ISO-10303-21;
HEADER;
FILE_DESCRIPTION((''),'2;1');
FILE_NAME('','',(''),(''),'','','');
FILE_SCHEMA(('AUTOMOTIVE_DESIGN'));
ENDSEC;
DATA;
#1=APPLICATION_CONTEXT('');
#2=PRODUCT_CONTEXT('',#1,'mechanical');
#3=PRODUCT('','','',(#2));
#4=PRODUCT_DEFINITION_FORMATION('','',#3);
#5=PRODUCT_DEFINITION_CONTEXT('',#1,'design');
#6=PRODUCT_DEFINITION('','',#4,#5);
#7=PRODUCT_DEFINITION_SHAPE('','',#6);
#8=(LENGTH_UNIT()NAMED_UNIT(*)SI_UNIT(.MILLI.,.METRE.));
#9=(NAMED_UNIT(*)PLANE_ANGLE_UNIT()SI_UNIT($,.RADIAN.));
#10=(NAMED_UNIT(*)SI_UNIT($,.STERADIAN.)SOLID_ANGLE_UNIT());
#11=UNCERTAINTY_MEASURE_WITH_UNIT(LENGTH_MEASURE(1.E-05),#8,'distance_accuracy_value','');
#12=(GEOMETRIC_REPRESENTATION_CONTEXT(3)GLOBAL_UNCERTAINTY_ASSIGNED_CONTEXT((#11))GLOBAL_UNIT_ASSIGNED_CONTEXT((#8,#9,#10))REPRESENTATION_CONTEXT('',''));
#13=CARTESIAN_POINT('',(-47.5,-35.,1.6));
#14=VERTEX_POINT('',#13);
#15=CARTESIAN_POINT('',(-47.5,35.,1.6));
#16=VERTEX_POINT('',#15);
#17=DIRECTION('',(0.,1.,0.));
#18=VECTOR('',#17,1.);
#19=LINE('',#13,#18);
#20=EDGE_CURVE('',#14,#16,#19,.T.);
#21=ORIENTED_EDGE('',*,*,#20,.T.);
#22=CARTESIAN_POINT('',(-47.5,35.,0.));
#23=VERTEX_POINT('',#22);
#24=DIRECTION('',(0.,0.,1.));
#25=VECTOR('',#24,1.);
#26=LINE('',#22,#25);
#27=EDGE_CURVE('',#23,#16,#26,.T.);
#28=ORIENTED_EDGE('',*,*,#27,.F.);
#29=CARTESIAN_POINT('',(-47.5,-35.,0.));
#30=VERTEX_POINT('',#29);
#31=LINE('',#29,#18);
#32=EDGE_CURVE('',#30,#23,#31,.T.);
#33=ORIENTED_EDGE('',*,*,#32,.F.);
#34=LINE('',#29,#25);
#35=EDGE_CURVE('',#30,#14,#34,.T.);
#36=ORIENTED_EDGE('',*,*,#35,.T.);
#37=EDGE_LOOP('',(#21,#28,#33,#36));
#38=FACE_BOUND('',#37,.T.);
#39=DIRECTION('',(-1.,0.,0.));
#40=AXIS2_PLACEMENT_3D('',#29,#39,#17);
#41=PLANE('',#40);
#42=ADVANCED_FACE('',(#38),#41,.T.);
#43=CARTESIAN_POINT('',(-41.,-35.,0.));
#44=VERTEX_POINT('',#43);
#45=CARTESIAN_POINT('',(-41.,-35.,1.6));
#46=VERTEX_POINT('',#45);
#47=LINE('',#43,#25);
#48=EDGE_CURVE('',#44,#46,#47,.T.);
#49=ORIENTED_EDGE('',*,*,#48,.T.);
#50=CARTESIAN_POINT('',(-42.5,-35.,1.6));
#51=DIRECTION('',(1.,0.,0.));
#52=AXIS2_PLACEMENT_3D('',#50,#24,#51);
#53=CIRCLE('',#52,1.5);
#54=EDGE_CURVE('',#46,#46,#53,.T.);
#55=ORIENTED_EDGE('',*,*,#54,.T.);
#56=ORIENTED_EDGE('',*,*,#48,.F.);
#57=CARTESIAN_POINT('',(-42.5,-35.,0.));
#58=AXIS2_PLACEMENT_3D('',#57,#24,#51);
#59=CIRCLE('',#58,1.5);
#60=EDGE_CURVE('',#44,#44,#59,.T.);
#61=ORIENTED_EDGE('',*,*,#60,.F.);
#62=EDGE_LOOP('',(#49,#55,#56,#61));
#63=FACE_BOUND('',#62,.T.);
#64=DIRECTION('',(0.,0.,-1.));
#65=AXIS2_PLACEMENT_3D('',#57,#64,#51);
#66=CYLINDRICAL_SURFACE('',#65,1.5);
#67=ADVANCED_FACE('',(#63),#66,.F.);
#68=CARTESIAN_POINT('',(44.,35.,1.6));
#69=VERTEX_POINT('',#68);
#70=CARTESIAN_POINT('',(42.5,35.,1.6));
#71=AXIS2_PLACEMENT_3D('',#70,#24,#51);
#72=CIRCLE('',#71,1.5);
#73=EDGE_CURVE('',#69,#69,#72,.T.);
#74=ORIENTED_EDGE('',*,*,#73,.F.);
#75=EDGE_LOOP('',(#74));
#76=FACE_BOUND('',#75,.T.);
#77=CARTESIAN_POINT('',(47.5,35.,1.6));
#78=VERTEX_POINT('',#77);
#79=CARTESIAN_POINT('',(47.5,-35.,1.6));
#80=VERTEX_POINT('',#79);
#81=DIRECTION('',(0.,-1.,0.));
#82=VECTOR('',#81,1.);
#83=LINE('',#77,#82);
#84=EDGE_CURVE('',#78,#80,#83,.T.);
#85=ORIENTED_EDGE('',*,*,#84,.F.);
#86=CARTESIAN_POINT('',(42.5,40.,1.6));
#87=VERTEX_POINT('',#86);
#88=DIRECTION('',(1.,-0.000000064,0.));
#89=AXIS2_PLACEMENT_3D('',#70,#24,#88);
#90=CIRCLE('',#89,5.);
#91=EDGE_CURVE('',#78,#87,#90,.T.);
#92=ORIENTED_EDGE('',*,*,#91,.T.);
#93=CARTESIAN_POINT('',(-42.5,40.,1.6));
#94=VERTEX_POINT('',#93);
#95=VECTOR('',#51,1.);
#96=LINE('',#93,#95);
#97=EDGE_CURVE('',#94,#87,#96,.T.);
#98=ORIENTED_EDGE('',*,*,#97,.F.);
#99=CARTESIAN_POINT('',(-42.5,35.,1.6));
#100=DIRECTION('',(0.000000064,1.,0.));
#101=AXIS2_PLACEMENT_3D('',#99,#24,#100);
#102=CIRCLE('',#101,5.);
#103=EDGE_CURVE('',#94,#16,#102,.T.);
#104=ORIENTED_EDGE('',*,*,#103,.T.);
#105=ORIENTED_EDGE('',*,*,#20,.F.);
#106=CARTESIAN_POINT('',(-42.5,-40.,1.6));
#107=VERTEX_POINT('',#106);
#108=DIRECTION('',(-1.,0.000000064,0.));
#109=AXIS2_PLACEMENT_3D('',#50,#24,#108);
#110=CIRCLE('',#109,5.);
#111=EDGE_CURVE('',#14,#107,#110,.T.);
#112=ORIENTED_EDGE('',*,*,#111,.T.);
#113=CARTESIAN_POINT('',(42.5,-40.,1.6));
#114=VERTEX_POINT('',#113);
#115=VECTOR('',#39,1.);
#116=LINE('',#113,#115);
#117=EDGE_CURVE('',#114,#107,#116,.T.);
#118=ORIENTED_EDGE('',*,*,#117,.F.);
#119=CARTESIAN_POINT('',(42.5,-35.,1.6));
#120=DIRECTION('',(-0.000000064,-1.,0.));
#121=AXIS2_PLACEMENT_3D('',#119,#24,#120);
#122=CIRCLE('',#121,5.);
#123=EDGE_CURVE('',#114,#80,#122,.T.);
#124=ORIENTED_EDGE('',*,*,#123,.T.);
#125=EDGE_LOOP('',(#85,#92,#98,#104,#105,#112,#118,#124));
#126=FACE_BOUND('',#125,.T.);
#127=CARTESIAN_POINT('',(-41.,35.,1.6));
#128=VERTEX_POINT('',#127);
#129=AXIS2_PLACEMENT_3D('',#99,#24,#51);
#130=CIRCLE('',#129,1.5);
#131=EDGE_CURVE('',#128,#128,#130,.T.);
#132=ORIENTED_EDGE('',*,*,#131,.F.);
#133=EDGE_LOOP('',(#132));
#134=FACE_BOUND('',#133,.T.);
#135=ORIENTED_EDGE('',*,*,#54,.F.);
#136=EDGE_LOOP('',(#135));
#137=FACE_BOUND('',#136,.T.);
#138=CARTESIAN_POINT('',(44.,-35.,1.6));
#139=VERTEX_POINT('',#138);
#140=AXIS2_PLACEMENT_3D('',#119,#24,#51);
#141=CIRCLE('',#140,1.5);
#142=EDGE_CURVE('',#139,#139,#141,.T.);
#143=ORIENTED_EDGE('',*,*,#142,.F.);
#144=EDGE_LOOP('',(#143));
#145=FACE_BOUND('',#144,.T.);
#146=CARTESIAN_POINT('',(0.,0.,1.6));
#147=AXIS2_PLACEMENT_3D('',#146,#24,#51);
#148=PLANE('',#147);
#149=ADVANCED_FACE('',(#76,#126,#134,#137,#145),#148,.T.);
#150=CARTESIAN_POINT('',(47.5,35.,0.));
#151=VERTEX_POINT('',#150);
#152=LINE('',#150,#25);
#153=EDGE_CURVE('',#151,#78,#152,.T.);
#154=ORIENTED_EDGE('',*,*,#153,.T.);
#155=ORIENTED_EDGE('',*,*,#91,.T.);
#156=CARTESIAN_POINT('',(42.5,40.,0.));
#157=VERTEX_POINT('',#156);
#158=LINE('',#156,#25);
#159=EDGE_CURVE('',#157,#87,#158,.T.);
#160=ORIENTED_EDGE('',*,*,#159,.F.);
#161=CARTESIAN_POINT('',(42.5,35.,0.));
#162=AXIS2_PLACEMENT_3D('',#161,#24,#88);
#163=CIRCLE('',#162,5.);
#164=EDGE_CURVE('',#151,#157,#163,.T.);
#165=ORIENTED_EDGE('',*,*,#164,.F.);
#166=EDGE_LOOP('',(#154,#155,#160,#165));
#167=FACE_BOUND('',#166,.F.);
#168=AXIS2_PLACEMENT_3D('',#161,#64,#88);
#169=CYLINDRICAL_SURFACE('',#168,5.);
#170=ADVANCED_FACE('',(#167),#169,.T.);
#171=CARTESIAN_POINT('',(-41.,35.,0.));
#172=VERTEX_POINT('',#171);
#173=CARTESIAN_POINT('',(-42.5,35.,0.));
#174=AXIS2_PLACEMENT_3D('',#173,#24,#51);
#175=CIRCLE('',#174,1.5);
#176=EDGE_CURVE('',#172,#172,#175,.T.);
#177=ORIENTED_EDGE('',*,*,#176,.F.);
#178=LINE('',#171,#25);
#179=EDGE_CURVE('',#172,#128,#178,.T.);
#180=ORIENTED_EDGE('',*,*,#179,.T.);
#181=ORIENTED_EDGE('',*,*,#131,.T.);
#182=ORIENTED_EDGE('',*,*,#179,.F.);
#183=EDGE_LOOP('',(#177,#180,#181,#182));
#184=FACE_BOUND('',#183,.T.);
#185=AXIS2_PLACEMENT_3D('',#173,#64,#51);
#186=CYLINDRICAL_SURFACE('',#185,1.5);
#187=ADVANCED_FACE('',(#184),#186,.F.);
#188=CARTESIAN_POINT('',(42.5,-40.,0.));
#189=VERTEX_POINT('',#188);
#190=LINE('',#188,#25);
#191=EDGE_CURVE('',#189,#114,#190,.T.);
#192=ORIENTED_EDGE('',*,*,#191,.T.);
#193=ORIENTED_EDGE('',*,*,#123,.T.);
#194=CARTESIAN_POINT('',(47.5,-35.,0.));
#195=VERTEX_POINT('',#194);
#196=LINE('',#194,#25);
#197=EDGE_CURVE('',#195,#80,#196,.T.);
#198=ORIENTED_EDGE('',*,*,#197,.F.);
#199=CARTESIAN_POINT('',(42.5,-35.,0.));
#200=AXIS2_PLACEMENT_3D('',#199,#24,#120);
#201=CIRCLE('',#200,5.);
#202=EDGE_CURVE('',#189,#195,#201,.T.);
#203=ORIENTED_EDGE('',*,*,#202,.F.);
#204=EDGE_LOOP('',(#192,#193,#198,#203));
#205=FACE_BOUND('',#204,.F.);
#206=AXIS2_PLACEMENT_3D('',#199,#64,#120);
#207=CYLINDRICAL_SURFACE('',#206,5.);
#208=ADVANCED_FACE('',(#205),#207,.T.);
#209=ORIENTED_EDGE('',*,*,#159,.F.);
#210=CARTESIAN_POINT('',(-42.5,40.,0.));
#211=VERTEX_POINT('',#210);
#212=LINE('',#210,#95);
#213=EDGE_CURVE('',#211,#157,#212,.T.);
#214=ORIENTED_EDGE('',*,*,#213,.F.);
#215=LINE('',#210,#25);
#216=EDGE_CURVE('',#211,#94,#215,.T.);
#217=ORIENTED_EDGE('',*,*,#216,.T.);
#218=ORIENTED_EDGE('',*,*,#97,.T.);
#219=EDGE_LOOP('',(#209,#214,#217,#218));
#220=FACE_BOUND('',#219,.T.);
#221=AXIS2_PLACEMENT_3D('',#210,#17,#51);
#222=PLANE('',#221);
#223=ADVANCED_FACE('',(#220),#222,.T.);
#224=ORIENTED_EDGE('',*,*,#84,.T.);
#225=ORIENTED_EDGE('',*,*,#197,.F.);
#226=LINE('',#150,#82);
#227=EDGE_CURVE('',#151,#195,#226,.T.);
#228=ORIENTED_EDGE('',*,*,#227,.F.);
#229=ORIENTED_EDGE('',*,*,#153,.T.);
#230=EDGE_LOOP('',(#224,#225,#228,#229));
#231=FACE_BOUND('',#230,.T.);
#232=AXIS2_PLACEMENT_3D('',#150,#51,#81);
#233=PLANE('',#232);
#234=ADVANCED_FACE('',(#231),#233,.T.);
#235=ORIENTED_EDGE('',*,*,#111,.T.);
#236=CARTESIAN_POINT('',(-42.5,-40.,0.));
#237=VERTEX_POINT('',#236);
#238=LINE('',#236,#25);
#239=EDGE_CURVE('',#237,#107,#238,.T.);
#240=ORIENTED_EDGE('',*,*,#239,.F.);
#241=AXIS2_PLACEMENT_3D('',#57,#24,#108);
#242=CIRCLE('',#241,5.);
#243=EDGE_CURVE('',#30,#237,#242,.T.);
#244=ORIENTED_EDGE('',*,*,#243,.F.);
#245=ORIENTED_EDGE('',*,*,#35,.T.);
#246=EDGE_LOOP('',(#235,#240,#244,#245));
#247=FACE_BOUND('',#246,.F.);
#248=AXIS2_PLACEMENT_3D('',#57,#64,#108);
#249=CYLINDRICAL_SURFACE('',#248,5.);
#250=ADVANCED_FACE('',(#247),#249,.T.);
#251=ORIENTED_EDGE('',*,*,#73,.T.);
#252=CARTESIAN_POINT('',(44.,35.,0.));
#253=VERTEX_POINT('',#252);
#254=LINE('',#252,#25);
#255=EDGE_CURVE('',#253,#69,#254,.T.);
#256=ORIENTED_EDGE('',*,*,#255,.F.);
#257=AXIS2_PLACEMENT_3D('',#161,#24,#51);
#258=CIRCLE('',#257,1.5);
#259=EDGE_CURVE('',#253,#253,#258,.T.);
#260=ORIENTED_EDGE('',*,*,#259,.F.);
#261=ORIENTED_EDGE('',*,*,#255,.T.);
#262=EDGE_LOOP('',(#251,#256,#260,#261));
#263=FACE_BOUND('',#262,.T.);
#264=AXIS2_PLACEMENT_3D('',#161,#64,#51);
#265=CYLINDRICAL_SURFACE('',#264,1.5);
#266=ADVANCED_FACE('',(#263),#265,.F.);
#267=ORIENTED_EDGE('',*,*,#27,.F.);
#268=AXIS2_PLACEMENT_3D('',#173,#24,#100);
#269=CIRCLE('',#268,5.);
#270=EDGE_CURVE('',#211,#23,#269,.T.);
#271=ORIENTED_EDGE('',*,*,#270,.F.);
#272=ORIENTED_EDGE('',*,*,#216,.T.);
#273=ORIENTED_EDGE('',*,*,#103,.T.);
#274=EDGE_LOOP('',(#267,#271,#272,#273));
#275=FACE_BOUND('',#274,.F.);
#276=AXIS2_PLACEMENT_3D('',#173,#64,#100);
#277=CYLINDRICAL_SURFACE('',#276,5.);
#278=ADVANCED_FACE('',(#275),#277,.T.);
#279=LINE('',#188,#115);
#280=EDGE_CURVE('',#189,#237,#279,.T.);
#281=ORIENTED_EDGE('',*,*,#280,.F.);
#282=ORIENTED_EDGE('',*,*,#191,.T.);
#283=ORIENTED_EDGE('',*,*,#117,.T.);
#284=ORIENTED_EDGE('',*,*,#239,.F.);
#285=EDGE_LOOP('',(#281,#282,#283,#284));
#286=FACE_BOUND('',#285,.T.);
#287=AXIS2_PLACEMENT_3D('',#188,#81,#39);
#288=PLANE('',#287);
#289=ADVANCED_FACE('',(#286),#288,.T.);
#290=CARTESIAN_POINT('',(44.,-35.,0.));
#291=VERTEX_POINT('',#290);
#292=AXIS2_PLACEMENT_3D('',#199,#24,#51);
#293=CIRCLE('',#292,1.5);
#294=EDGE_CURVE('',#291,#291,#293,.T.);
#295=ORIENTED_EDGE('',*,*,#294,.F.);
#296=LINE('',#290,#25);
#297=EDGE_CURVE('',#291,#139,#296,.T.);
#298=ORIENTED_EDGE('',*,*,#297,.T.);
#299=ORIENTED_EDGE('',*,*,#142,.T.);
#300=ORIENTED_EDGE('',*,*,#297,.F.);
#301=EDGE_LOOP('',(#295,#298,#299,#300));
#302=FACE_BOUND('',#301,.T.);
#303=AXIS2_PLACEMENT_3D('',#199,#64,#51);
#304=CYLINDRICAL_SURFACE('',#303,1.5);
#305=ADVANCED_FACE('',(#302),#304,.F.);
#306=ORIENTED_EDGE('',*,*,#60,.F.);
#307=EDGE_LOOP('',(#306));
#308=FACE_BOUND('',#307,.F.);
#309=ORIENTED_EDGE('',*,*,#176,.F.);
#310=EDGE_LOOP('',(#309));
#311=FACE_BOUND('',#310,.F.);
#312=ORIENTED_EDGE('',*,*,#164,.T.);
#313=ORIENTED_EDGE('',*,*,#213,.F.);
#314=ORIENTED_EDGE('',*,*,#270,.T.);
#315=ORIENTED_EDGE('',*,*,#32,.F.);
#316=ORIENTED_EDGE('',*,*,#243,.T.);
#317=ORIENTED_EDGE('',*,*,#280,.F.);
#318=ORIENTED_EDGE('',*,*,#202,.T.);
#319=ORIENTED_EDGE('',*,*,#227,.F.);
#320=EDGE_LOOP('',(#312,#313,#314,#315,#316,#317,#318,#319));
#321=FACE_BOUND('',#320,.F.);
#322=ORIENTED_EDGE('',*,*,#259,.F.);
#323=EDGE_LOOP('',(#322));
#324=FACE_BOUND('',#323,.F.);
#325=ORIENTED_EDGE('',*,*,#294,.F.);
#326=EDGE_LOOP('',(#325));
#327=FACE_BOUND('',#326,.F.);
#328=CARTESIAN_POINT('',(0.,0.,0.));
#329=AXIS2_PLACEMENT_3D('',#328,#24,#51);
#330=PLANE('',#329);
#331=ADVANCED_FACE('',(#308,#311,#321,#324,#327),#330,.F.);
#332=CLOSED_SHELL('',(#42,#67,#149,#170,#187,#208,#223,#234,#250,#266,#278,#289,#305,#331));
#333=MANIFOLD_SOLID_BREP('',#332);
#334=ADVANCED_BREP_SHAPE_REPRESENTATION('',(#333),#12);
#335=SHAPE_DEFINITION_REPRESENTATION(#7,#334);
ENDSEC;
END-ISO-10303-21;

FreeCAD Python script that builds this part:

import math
import FreeCAD as App
import Part
import Sketcher

V = App.Vector

doc = App.newDocument("Part")
body = doc.addObject("PartDesign::Body", "Body")

# Sketch on XY plane
sketch1 = doc.addObject("Sketcher::SketchObject", "Sketch")
body.addObject(sketch1)
sketch1.AttachmentSupport = (doc.XY_Plane, [""])
sketch1.MapMode = "FlatFace"
sketch1.addGeometry([
    Part.ArcOfCircle(Part.Circle(V(-42.5, 35, 0), V(0, 0, 1), 5), math.radians(89.999996), math.radians(180.000004)),  # 0
    Part.LineSegment(V(-47.5, 35, 0), V(-47.5, -35, 0)),  # 1
    Part.ArcOfCircle(Part.Circle(V(-42.5, -35, 0), V(0, 0, 1), 5), math.radians(179.999996), math.radians(270.000004)),  # 2
    Part.LineSegment(V(-42.5, -40, 0), V(42.5, -40, 0)),  # 3
    Part.ArcOfCircle(Part.Circle(V(42.5, -35, 0), V(0, 0, 1), 5), math.radians(-90.000004), math.radians(0.000004)),  # 4
    Part.LineSegment(V(47.5, -35, 0), V(47.5, 35, 0)),  # 5
    Part.ArcOfCircle(Part.Circle(V(42.5, 35, 0), V(0, 0, 1), 5), math.radians(-0.000004), math.radians(90.000004)),  # 6
    Part.LineSegment(V(42.5, 40, 0), V(-42.5, 40, 0)),  # 7
    Part.Circle(V(-42.5, -35, 0), V(0, 0, 1), 1.5),  # 8
    Part.Circle(V(42.5, -35, 0), V(0, 0, 1), 1.5),  # 9
    Part.Circle(V(-42.5, 35, 0), V(0, 0, 1), 1.5),  # 10
    Part.Circle(V(42.5, 35, 0), V(0, 0, 1), 1.5),  # 11
], False)
sketch1.addConstraint([
    Sketcher.Constraint("Tangent", 0, 2, 1, 1),
    Sketcher.Constraint("Tangent", 1, 2, 2, 1),
    Sketcher.Constraint("Tangent", 2, 2, 3, 1),
    Sketcher.Constraint("Tangent", 3, 2, 4, 1),
    Sketcher.Constraint("Tangent", 4, 2, 5, 1),
    Sketcher.Constraint("Tangent", 5, 2, 6, 1),
    Sketcher.Constraint("Tangent", 6, 2, 7, 1),
    Sketcher.Constraint("Tangent", 7, 2, 0, 1),
    Sketcher.Constraint("Vertical", 1),
    Sketcher.Constraint("Horizontal", 3),
    Sketcher.Constraint("Vertical", 5),
    Sketcher.Constraint("Horizontal", 7),
    Sketcher.Constraint("Coincident", 8, 3, 2, 3),
    Sketcher.Constraint("Coincident", 9, 3, 4, 3),
    Sketcher.Constraint("Coincident", 10, 3, 0, 3),
    Sketcher.Constraint("Coincident", 11, 3, 6, 3),
    Sketcher.Constraint("Equal", 0, 2),
    Sketcher.Constraint("Equal", 2, 4),
    Sketcher.Constraint("Equal", 4, 6),
    Sketcher.Constraint("Equal", 8, 9),
    Sketcher.Constraint("Equal", 9, 10),
    Sketcher.Constraint("Equal", 10, 11),
    Sketcher.Constraint("Symmetric", 0, 3, 4, 3, -1, 1),
    Sketcher.Constraint("Diameter", 8, 3.0),
    Sketcher.Constraint("Radius", 0, 5.0),
    Sketcher.Constraint("DistanceX", 3, 1, 3, 2, 85.0),
    Sketcher.Constraint("DistanceY", 1, 2, 1, 1, 70.0),
])
pad1 = doc.addObject("PartDesign::Pad", "Pad")
body.addObject(pad1)
pad1.Profile = sketch1
pad1.Length = 1.6

doc.recompute()
